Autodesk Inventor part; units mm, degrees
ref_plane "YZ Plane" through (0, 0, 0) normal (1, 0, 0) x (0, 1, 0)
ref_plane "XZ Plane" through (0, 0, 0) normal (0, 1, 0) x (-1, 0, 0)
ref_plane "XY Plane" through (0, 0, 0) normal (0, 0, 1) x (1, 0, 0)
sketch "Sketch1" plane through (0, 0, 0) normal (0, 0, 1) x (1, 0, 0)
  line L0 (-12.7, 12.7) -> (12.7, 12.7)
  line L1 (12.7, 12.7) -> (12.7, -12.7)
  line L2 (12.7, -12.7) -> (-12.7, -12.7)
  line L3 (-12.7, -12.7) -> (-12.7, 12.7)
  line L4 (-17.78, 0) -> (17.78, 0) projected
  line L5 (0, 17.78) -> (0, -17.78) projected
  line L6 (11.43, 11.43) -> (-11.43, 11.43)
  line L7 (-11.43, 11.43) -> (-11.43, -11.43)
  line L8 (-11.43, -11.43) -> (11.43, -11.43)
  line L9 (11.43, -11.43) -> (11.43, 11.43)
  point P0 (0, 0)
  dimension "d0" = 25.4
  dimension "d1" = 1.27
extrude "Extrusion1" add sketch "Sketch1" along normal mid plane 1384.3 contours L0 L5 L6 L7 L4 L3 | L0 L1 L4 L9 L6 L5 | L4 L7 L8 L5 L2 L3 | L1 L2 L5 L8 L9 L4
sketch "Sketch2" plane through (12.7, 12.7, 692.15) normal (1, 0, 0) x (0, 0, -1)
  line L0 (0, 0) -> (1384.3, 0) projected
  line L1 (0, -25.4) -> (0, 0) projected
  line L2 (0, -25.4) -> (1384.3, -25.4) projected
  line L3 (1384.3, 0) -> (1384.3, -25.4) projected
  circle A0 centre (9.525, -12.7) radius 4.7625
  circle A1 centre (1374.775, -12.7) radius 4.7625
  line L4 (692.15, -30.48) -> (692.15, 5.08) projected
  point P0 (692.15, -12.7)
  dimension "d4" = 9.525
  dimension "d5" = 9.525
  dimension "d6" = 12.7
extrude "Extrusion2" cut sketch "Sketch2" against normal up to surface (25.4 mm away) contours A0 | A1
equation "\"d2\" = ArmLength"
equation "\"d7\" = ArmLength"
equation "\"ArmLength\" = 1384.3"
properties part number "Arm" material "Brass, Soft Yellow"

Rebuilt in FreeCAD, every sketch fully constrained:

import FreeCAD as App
import Part
import Sketcher
from FreeCAD import Vector
Q = App.Units.Quantity


def add_polygon(sketch, points):
    """Adds a closed chain of lines whose ends are joined by coincident constraints."""
    first, n = sketch.GeometryCount, len(points)
    for a, b in zip(points, points[1:] + points[:1]):
        sketch.addGeometry(Part.LineSegment(App.Vector(*a, 0), App.Vector(*b, 0)), False)
    for i in range(n):
        sketch.addConstraint(Sketcher.Constraint("Coincident", first + i, 2, first + (i + 1) % n, 1))

doc = App.newDocument("Part")
body = doc.addObject("PartDesign::Body", "Body")

# Sketch on XY plane
sketch1 = body.newObject("Sketcher::SketchObject", "Sketch")
sketch1.AttachmentSupport = (doc.getObject("XY_Plane"), [""])
sketch1.MapMode = "FlatFace"
add_polygon(sketch1, [(-13, 13), (-13, -13), (13, -13), (13, 13)])  # lines 0-3
add_polygon(sketch1, [(-11, 11), (11, 11), (11, -11), (-11, -11)])  # lines 4-7
sketch1.addConstraint(Sketcher.Constraint("Vertical", 0))
sketch1.addConstraint(Sketcher.Constraint("Horizontal", 1))
sketch1.addConstraint(Sketcher.Constraint("Vertical", 2))
sketch1.addConstraint(Sketcher.Constraint("Horizontal", 3))
sketch1.addConstraint(Sketcher.Constraint("Horizontal", 4))
sketch1.addConstraint(Sketcher.Constraint("Vertical", 5))
sketch1.addConstraint(Sketcher.Constraint("Horizontal", 6))
sketch1.addConstraint(Sketcher.Constraint("Vertical", 7))
sketch1.addConstraint(Sketcher.Constraint("Symmetric", 0, 2, 2, 2, -1, 1))
sketch1.addConstraint(Sketcher.Constraint("Symmetric", 4, 2, 6, 2, -1, 1))
sketch1.addConstraint(Sketcher.Constraint("Equal", 3, 0))
sketch1.addConstraint(Sketcher.Constraint("Equal", 6, 5))
sketch1.addConstraint(Sketcher.Constraint("DistanceX", 1, 1, 1, 2, Q("1 in")))
sketch1.addConstraint(Sketcher.Constraint("DistanceX", 4, 2, 2, 2, Q("0.05 in")))
pad1 = body.newObject("PartDesign::Pad", "Pad")
pad1.Profile = sketch1
pad1.Length = Q("54.5 in")
pad1.Midplane = True

# Sketch on YZ plane
sketch2 = body.newObject("Sketcher::SketchObject", "Sketch001")
sketch2.AttachmentSupport = (doc.getObject("YZ_Plane"), [""])
sketch2.MapMode = "FlatFace"
sketch2.AttachmentOffset = App.Placement(Vector(0, 0, 0.5 * 25.4), App.Rotation())
sketch2.addGeometry(Part.Circle(Vector(0, 682.6, 0), Vector(0, 0, 1), 4.8), False)
sketch2.addGeometry(Part.Circle(Vector(0, -682.6, 0), Vector(0, 0, 1), 4.8), False)
sketch2.addConstraint(Sketcher.Constraint("Equal", 0, 1))
sketch2.addConstraint(Sketcher.Constraint("Symmetric", 0, 3, 1, 3, -1, 1))
sketch2.addConstraint(Sketcher.Constraint("PointOnObject", 0, 3, -2))
sketch2.addConstraint(Sketcher.Constraint("Diameter", 0, Q("0.375 in")))
sketch2.addConstraint(Sketcher.Constraint("DistanceY", 1, 3, 0, 3, Q("53.75 in")))
pocket1 = body.newObject("PartDesign::Pocket", "Pocket")
pocket1.Profile = sketch2
pocket1.Length = Q("1 in")

doc.recompute()
